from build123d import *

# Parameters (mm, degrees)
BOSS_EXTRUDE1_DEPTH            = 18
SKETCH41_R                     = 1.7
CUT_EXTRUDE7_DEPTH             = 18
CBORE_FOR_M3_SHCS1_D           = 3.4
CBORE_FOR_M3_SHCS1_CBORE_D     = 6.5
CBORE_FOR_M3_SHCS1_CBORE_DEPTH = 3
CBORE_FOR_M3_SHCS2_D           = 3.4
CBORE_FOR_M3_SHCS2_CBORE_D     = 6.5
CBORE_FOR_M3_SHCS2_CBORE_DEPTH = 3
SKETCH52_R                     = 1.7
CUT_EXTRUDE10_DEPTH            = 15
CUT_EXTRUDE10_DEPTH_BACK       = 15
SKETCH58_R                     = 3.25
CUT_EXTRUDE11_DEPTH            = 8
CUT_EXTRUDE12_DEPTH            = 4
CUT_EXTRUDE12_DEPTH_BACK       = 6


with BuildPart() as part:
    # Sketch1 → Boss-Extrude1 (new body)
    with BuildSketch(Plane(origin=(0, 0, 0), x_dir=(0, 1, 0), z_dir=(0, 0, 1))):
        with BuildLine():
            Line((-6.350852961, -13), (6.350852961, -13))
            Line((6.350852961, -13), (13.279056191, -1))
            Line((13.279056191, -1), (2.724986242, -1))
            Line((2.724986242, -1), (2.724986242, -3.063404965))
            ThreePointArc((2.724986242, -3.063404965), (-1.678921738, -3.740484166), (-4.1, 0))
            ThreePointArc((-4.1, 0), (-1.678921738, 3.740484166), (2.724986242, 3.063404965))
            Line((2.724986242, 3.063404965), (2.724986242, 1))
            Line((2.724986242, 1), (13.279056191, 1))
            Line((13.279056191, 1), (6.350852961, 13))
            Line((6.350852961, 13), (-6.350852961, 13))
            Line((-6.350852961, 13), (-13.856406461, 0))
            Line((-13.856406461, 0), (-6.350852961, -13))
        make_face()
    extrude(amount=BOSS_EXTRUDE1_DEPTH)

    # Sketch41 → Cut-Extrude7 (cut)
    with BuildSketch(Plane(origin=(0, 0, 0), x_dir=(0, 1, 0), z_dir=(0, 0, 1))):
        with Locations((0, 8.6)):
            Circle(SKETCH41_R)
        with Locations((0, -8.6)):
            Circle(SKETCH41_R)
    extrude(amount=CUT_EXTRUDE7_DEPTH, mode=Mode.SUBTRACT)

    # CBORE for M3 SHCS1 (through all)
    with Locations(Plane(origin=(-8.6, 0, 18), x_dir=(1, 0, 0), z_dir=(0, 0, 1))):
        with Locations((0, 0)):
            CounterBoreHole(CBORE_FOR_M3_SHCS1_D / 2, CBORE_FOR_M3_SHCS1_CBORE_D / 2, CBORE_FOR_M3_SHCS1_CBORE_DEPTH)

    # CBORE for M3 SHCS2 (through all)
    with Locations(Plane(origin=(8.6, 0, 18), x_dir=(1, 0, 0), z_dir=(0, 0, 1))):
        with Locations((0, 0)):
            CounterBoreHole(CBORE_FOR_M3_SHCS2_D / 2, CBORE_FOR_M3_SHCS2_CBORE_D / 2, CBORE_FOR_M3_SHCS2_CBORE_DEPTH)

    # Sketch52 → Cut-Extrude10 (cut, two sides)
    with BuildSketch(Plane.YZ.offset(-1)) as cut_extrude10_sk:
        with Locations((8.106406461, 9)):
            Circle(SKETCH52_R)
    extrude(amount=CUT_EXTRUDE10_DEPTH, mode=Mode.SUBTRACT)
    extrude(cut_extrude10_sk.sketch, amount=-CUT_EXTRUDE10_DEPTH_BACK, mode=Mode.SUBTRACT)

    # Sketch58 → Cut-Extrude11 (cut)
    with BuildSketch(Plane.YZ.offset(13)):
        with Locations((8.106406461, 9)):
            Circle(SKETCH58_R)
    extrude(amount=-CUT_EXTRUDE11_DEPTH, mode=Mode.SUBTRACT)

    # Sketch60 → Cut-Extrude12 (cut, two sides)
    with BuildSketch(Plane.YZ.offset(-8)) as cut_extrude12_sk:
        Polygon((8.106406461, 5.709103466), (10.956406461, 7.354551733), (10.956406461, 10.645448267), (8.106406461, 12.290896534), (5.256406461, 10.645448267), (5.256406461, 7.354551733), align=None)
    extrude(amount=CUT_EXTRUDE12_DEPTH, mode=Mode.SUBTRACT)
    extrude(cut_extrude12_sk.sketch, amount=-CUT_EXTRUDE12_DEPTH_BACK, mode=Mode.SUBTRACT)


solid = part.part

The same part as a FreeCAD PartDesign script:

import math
import FreeCAD as App
import Part
import Sketcher
from FreeCAD import Vector
Q = App.Units.Quantity

doc = App.newDocument("Part")
body = doc.addObject("PartDesign::Body", "Body")

# Sketch on XY plane
sketch1 = doc.addObject("Sketcher::SketchObject", "Sketch")
body.addObject(sketch1)
sketch1.AttachmentSupport = (doc.XY_Plane, [""])
sketch1.MapMode = "FlatFace"
sketch1.addGeometry([
    Part.LineSegment(Vector(13, -6.4, 0), Vector(13, 6.4, 0)),  # 0
    Part.LineSegment(Vector(13, 6.4, 0), Vector(1, 13.3, 0)),  # 1
    Part.LineSegment(Vector(1, 13.3, 0), Vector(1, 2.7, 0)),  # 2
    Part.LineSegment(Vector(1, 2.7, 0), Vector(3.1, 2.7, 0)),  # 3
    Part.ArcOfCircle(Part.Circle(Vector(0, 0, 0), Vector(0, 0, 1), 4.1), math.radians(-90), math.radians(42)),  # 4
    Part.ArcOfCircle(Part.Circle(Vector(0, 0, 0), Vector(0, 0, 1), 4.1), math.radians(138), math.radians(270)),  # 5
    Part.LineSegment(Vector(-3.1, 2.7, 0), Vector(-1, 2.7, 0)),  # 6
    Part.LineSegment(Vector(-1, 2.7, 0), Vector(-1, 13.3, 0)),  # 7
    Part.LineSegment(Vector(-1, 13.3, 0), Vector(-13, 6.4, 0)),  # 8
    Part.LineSegment(Vector(-13, 6.4, 0), Vector(-13, -6.4, 0)),  # 9
    Part.LineSegment(Vector(-13, -6.4, 0), Vector(0, -13.9, 0)),  # 10
    Part.LineSegment(Vector(0, -13.9, 0), Vector(13, -6.4, 0)),  # 11
], False)
sketch1.addConstraint([
    Sketcher.Constraint("Coincident", 0, 2, 1, 1),
    Sketcher.Constraint("Coincident", 1, 2, 2, 1),
    Sketcher.Constraint("Coincident", 2, 2, 3, 1),
    Sketcher.Constraint("Coincident", 3, 2, 4, 2),
    Sketcher.Constraint("Tangent", 4, 1, 5, 2),
    Sketcher.Constraint("Coincident", 5, 1, 6, 1),
    Sketcher.Constraint("Coincident", 6, 2, 7, 1),
    Sketcher.Constraint("Coincident", 7, 2, 8, 1),
    Sketcher.Constraint("Coincident", 8, 2, 9, 1),
    Sketcher.Constraint("Coincident", 9, 2, 10, 1),
    Sketcher.Constraint("Coincident", 10, 2, 11, 1),
    Sketcher.Constraint("Coincident", 11, 2, 0, 1),
    Sketcher.Constraint("Vertical", 0),
    Sketcher.Constraint("Vertical", 2),
    Sketcher.Constraint("Horizontal", 3),
    Sketcher.Constraint("Horizontal", 6),
    Sketcher.Constraint("Vertical", 7),
    Sketcher.Constraint("Vertical", 9),
    Sketcher.Constraint("Coincident", 4, 3, -1, 1),
    Sketcher.Constraint("Equal", 4, 5),
    Sketcher.Constraint("Symmetric", 0, 2, 9, 2, -1, 1),
    Sketcher.Constraint("Symmetric", 2, 2, 6, 2, -2),
    Sketcher.Constraint("PointOnObject", 4, 1, -2),
    Sketcher.Constraint("PointOnObject", 10, 2, -2),
    Sketcher.Constraint("Parallel", 1, 10),
    Sketcher.Constraint("Parallel", 8, 11),
    Sketcher.Constraint("Horizontal", 1, 2, 7, 2),
    Sketcher.Constraint("Horizontal", 0, 2, 8, 2),
    Sketcher.Constraint("Radius", 4, 4.1),
    Sketcher.Constraint("Angle", 1, Q("150 deg")),
    Sketcher.Constraint("DistanceX", -1, 1, 0, 2, 13.0),
    Sketcher.Constraint("DistanceX", -1, 1, 1, 2, 1.0),
    Sketcher.Constraint("DistanceY", 2, 2, 2, 1, 10.55407),
    Sketcher.Constraint("DistanceX", 3, 1, 3, 2, 2.063405),
])
pad1 = doc.addObject("PartDesign::Pad", "Pad")
body.addObject(pad1)
pad1.Profile = sketch1
pad1.Length = 18

# Sketch on XY plane
sketch2 = doc.addObject("Sketcher::SketchObject", "Sketch001")
body.addObject(sketch2)
sketch2.AttachmentSupport = (doc.XY_Plane, [""])
sketch2.MapMode = "FlatFace"
sketch2.addGeometry([
    Part.Circle(Vector(-8.6, 0, 0), Vector(0, 0, 1), 1.7),
    Part.Circle(Vector(8.6, 0, 0), Vector(0, 0, 1), 1.7),
], False)
sketch2.addConstraint([
    Sketcher.Constraint("Equal", 0, 1),
    Sketcher.Constraint("Symmetric", 0, 3, 1, 3, -1, 1),
    Sketcher.Constraint("PointOnObject", 0, 3, -1),
    Sketcher.Constraint("Diameter", 0, 3.4),
    Sketcher.Constraint("DistanceX", 0, 3, -1, 1, 8.6),
])
pocket1 = doc.addObject("PartDesign::Pocket", "Pocket")
body.addObject(pocket1)
pocket1.Profile = sketch2
pocket1.Length = 18
pocket1.Reversed = True

# Sketch on XY plane
sketch3 = doc.addObject("Sketcher::SketchObject", "Sketch002")
body.addObject(sketch3)
sketch3.AttachmentSupport = (doc.XY_Plane, [""])
sketch3.MapMode = "FlatFace"
sketch3.AttachmentOffset = App.Placement(Vector(0, 0, 18), App.Rotation())
sketch3.addGeometry(Part.Circle(Vector(-8.6, 0, 0), Vector(0, 0, 1), 1.7), False)
sketch3.addConstraint([
    Sketcher.Constraint("PointOnObject", 0, 3, -1),
    Sketcher.Constraint("Diameter", 0, 3.4),
    Sketcher.Constraint("DistanceX", 0, 3, -1, 1, 8.6),
])
doc.recompute()
hole = doc.addObject("PartDesign::Hole", "Hole")
body.addObject(hole)
hole.Profile = sketch3
hole.ThreadType = "None"
hole.Diameter = 3.4
hole.DepthType = "ThroughAll"
hole.HoleCutType = "Counterbore"
hole.HoleCutDiameter = 6.5
hole.HoleCutDepth = 3

# Sketch on XY plane
sketch4 = doc.addObject("Sketcher::SketchObject", "Sketch003")
body.addObject(sketch4)
sketch4.AttachmentSupport = (doc.XY_Plane, [""])
sketch4.MapMode = "FlatFace"
sketch4.AttachmentOffset = App.Placement(Vector(0, 0, 18), App.Rotation())
sketch4.addGeometry(Part.Circle(Vector(8.6, 0, 0), Vector(0, 0, 1), 1.7), False)
sketch4.addConstraint([
    Sketcher.Constraint("PointOnObject", 0, 3, -1),
    Sketcher.Constraint("Diameter", 0, 3.4),
    Sketcher.Constraint("DistanceX", -1, 1, 0, 3, 8.6),
])
doc.recompute()
hole2 = doc.addObject("PartDesign::Hole", "Hole001")
body.addObject(hole2)
hole2.Profile = sketch4
hole2.ThreadType = "None"
hole2.Diameter = 3.4
hole2.DepthType = "ThroughAll"
hole2.HoleCutType = "Counterbore"
hole2.HoleCutDiameter = 6.5
hole2.HoleCutDepth = 3

# Sketch on YZ plane
sketch5 = doc.addObject("Sketcher::SketchObject", "Sketch004")
body.addObject(sketch5)
sketch5.AttachmentSupport = (doc.YZ_Plane, [""])
sketch5.MapMode = "FlatFace"
sketch5.AttachmentOffset = App.Placement(Vector(0, 0, -1), App.Rotation())
sketch5.addGeometry(Part.Circle(Vector(8.1, 9, 0), Vector(0, 0, 1), 1.7), False)
sketch5.addConstraint([
    Sketcher.Constraint("Diameter", 0, 3.4),
    Sketcher.Constraint("DistanceY", -1, 1, 0, 3, 9.0),
    Sketcher.Constraint("DistanceX", -1, 1, 0, 3, 8.106406),
])
pocket2 = doc.addObject("PartDesign::Pocket", "Pocket001")
body.addObject(pocket2)
pocket2.Profile = sketch5
pocket2.Type = "ThroughAll"
pocket2.Midplane = True

# Sketch on YZ plane
sketch6 = doc.addObject("Sketcher::SketchObject", "Sketch005")
body.addObject(sketch6)
sketch6.AttachmentSupport = (doc.YZ_Plane, [""])
sketch6.MapMode = "FlatFace"
sketch6.AttachmentOffset = App.Placement(Vector(0, 0, 13), App.Rotation())
sketch6.addGeometry(Part.Circle(Vector(8.1, 9, 0), Vector(0, 0, 1), 3.2), False)
sketch6.addConstraint([
    Sketcher.Constraint("Diameter", 0, 6.5),
    Sketcher.Constraint("DistanceY", -1, 1, 0, 3, 9.0),
    Sketcher.Constraint("DistanceX", -1, 1, 0, 3, 8.106406),
])
pocket3 = doc.addObject("PartDesign::Pocket", "Pocket002")
body.addObject(pocket3)
pocket3.Profile = sketch6
pocket3.Length = 8

# Sketch on YZ plane
sketch7 = doc.addObject("Sketcher::SketchObject", "Sketch006")
body.addObject(sketch7)
sketch7.AttachmentSupport = (doc.YZ_Plane, [""])
sketch7.MapMode = "FlatFace"
sketch7.AttachmentOffset = App.Placement(Vector(0, 0, -8), App.Rotation())
sketch7.addGeometry([
    Part.LineSegment(Vector(8.1, 5.7, 0), Vector(11, 7.4, 0)),  # 0
    Part.LineSegment(Vector(11, 7.4, 0), Vector(11, 10.6, 0)),  # 1
    Part.LineSegment(Vector(11, 10.6, 0), Vector(8.1, 12.3, 0)),  # 2
    Part.LineSegment(Vector(8.1, 12.3, 0), Vector(5.3, 10.6, 0)),  # 3
    Part.LineSegment(Vector(5.3, 10.6, 0), Vector(5.3, 7.4, 0)),  # 4
    Part.LineSegment(Vector(5.3, 7.4, 0), Vector(8.1, 5.7, 0)),  # 5
], False)
sketch7.addConstraint([
    Sketcher.Constraint("Coincident", 0, 2, 1, 1),
    Sketcher.Constraint("Coincident", 1, 2, 2, 1),
    Sketcher.Constraint("Coincident", 2, 2, 3, 1),
    Sketcher.Constraint("Coincident", 3, 2, 4, 1),
    Sketcher.Constraint("Coincident", 4, 2, 5, 1),
    Sketcher.Constraint("Coincident", 5, 2, 0, 1),
    Sketcher.Constraint("Vertical", 1),
    Sketcher.Constraint("Vertical", 4),
    Sketcher.Constraint("Parallel", 0, 3),
    Sketcher.Constraint("Parallel", 2, 5),
    Sketcher.Constraint("Horizontal", 1, 2, 3, 2),
    Sketcher.Constraint("Horizontal", 0, 2, 4, 2),
    Sketcher.Constraint("Vertical", 2, 2, 5, 2),
    Sketcher.Constraint("Angle", 0, Q("30 deg")),
    Sketcher.Constraint("DistanceX", 3, 2, 1, 2, 5.7),
    Sketcher.Constraint("DistanceY", 1, 1, 1, 2, 3.290897),
    Sketcher.Constraint("DistanceY", -1, 1, 0, 2, 7.354552),
    Sketcher.Constraint("DistanceX", -1, 1, 0, 2, 10.956406),
])
pocket4 = doc.addObject("PartDesign::Pocket", "Pocket003")
body.addObject(pocket4)
pocket4.Profile = sketch7
pocket4.Type = "TwoLengths"
pocket4.Length = 4
pocket4.Length2 = 6
pocket4.Reversed = True

doc.recompute()
